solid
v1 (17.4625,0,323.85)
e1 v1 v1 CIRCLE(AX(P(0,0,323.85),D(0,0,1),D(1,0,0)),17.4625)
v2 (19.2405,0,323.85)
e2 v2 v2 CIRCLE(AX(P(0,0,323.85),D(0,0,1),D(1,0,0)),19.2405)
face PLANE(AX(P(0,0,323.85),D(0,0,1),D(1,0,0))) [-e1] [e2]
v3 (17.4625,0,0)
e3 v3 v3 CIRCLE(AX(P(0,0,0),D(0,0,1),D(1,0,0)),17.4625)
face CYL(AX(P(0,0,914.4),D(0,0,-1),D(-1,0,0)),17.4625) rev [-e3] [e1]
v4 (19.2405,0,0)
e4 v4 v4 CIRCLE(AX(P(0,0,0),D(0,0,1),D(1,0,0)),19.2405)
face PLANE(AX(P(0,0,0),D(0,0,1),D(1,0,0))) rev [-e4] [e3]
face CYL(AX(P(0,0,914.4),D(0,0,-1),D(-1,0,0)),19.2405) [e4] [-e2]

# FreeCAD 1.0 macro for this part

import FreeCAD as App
import Part
import Sketcher
from FreeCAD import Vector
Q = App.Units.Quantity

doc = App.newDocument("Part")
body = doc.addObject("PartDesign::Body", "Body")

# Sketch on XY plane
sketch1 = body.newObject("Sketcher::SketchObject", "Sketch")
sketch1.AttachmentSupport = (doc.getObject("XY_Plane"), [""])
sketch1.MapMode = "FlatFace"
sketch1.addGeometry([
    Part.Circle(Vector(0, 0, 0), Vector(0, 0, 1), 19),
    Part.Circle(Vector(0, 0, 0), Vector(0, 0, 1), 17),
], False)
sketch1.addConstraint([
    Sketcher.Constraint("Coincident", 0, 3, -1, 1),
    Sketcher.Constraint("Coincident", 1, 3, -1, 1),
    Sketcher.Constraint("Diameter", 0, Q("1.515 in")),
    Sketcher.Constraint("Diameter", 1, Q("1.375 in")),
])
pad1 = body.newObject("PartDesign::Pad", "Pad")
pad1.Profile = sketch1
pad1.Length = Q("36 in")

# Sketch on XY plane
sketch2 = body.newObject("Sketcher::SketchObject", "Sketch001")
sketch2.AttachmentSupport = (doc.getObject("XY_Plane"), [""])
sketch2.MapMode = "FlatFace"
sketch2.AttachmentOffset = App.Placement(Vector(0, 0, 33.5 * 25.4), App.Rotation())
sketch2.addGeometry(Part.Circle(Vector(0, 0, 0), Vector(0, 0, 1), 19), False)
sketch2.addConstraint([
    Sketcher.Constraint("Coincident", 0, 3, -1, 1),
    Sketcher.Constraint("Diameter", 0, Q("1.515 in")),
])
pocket1 = body.newObject("PartDesign::Pocket", "Pocket")
pocket1.Profile = sketch2
pocket1.Length = Q("2.5 in")
pocket1.Reversed = True

# Sketch on XY plane
sketch3 = body.newObject("Sketcher::SketchObject", "Sketch002")
sketch3.AttachmentSupport = (doc.getObject("XY_Plane"), [""])
sketch3.MapMode = "FlatFace"
sketch3.AttachmentOffset = App.Placement(Vector(0, 0, 12.75 * 25.4), App.Rotation())
sketch3.addGeometry(Part.Circle(Vector(0, 0, 0), Vector(0, 0, 1), 19), False)
sketch3.addConstraint([
    Sketcher.Constraint("Coincident", 0, 3, -1, 1),
    Sketcher.Constraint("Diameter", 0, Q("1.515 in")),
])
pocket2 = body.newObject("PartDesign::Pocket", "Pocket001")
pocket2.Profile = sketch3
pocket2.Length = Q("20.75 in")
pocket2.Reversed = True

doc.recompute()
